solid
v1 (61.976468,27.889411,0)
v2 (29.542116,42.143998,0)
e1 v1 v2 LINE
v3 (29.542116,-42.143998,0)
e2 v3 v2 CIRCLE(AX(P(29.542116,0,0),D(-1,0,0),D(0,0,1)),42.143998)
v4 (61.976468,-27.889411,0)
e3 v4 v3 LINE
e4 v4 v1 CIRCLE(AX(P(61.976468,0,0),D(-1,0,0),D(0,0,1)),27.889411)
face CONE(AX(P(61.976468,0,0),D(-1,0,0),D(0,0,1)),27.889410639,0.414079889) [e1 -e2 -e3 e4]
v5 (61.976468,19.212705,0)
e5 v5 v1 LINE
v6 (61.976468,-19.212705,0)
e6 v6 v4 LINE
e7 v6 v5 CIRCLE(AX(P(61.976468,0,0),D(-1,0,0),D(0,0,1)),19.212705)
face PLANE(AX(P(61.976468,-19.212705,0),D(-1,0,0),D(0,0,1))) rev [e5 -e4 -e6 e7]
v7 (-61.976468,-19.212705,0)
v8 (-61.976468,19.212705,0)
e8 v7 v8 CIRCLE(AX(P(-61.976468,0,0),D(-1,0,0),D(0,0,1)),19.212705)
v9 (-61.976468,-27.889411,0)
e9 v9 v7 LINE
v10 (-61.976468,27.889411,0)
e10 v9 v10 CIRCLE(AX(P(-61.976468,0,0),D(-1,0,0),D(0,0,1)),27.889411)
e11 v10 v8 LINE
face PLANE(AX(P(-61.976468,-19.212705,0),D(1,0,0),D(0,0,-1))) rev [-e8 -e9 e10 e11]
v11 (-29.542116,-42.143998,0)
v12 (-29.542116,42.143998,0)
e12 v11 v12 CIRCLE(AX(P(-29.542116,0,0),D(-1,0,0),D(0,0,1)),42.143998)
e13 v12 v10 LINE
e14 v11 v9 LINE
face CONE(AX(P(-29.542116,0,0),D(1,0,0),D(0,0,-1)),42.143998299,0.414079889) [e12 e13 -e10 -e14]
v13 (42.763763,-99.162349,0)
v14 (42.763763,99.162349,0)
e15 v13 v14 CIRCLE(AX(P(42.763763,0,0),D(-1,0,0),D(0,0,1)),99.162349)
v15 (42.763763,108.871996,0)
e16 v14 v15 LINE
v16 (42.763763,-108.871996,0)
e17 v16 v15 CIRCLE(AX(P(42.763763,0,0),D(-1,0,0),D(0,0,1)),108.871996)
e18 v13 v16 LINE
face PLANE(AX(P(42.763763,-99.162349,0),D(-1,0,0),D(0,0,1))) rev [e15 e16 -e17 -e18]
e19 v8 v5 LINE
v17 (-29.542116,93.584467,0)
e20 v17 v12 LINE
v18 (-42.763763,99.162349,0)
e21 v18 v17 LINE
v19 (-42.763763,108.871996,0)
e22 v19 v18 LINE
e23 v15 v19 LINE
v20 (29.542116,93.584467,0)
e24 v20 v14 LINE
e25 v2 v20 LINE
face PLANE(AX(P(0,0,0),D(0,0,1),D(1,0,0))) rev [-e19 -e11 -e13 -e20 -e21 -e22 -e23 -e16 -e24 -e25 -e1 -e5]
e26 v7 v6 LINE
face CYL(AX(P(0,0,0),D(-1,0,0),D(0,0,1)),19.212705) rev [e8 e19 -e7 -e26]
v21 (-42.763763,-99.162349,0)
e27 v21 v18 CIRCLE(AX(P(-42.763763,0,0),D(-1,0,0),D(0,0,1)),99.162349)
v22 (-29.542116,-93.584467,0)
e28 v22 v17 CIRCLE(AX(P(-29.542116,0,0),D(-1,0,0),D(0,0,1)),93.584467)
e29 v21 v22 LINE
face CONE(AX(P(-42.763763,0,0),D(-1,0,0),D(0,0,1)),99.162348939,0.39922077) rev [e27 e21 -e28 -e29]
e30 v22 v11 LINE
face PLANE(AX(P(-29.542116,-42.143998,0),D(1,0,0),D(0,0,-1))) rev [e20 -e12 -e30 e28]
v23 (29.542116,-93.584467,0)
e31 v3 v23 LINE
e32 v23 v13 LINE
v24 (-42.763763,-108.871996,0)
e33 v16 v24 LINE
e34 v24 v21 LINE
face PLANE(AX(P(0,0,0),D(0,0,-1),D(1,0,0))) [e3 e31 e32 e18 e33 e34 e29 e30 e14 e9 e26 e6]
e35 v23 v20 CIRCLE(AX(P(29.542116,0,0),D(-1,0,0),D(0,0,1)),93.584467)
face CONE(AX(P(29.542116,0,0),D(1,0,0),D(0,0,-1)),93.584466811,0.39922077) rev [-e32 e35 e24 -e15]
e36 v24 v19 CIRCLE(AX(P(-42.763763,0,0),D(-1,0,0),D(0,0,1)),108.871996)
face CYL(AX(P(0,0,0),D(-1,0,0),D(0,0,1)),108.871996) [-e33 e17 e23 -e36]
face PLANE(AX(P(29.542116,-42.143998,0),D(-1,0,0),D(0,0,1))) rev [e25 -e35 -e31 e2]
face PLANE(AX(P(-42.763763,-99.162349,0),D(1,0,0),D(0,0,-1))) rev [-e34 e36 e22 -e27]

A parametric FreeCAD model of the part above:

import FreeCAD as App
import Part
import Sketcher
from FreeCAD import Vector

doc = App.newDocument("Part")
body = doc.addObject("PartDesign::Body", "Body")

# Sketch on XY plane
sketch1 = doc.addObject("Sketcher::SketchObject", "Sketch")
body.addObject(sketch1)
sketch1.AttachmentSupport = (doc.XY_Plane, [""])
sketch1.MapMode = "FlatFace"
sketch1.addGeometry([
    Part.LineSegment(Vector(-62, 19, 0), Vector(62, 19, 0)),  # 0
    Part.LineSegment(Vector(62, 19, 0), Vector(62, 28, 0)),  # 1
    Part.LineSegment(Vector(62, 28, 0), Vector(30, 42, 0)),  # 2
    Part.LineSegment(Vector(30, 42, 0), Vector(30, 94, 0)),  # 3
    Part.LineSegment(Vector(30, 94, 0), Vector(43, 99, 0)),  # 4
    Part.LineSegment(Vector(43, 99, 0), Vector(43, 109, 0)),  # 5
    Part.LineSegment(Vector(43, 109, 0), Vector(-43, 109, 0)),  # 6
    Part.LineSegment(Vector(-43, 109, 0), Vector(-43, 99, 0)),  # 7
    Part.LineSegment(Vector(-43, 99, 0), Vector(-30, 94, 0)),  # 8
    Part.LineSegment(Vector(-30, 94, 0), Vector(-30, 42, 0)),  # 9
    Part.LineSegment(Vector(-30, 42, 0), Vector(-62, 28, 0)),  # 10
    Part.LineSegment(Vector(-62, 28, 0), Vector(-62, 19, 0)),  # 11
], False)
sketch1.addConstraint([
    Sketcher.Constraint("Coincident", 0, 2, 1, 1),
    Sketcher.Constraint("Coincident", 1, 2, 2, 1),
    Sketcher.Constraint("Coincident", 2, 2, 3, 1),
    Sketcher.Constraint("Coincident", 3, 2, 4, 1),
    Sketcher.Constraint("Coincident", 4, 2, 5, 1),
    Sketcher.Constraint("Coincident", 5, 2, 6, 1),
    Sketcher.Constraint("Coincident", 6, 2, 7, 1),
    Sketcher.Constraint("Coincident", 7, 2, 8, 1),
    Sketcher.Constraint("Coincident", 8, 2, 9, 1),
    Sketcher.Constraint("Coincident", 9, 2, 10, 1),
    Sketcher.Constraint("Coincident", 10, 2, 11, 1),
    Sketcher.Constraint("Coincident", 11, 2, 0, 1),
    Sketcher.Constraint("Horizontal", 0),
    Sketcher.Constraint("Vertical", 1),
    Sketcher.Constraint("Vertical", 3),
    Sketcher.Constraint("Vertical", 5),
    Sketcher.Constraint("Horizontal", 6),
    Sketcher.Constraint("Vertical", 7),
    Sketcher.Constraint("Vertical", 9),
    Sketcher.Constraint("Vertical", 11),
    Sketcher.Constraint("Symmetric", 4, 2, 7, 2, -2),
    Sketcher.Constraint("Symmetric", 3, 2, 8, 2, -2),
    Sketcher.Constraint("Symmetric", 1, 2, 10, 2, -2),
    Sketcher.Constraint("Horizontal", 2, 2, 9, 2),
    Sketcher.Constraint("DistanceY", -1, 1, 2, 2, 42.143998),
    Sketcher.Constraint("DistanceY", 3, 1, 3, 2, 51.440469),
    Sketcher.Constraint("DistanceX", 0, 1, 0, 2, 123.952936),
    Sketcher.Constraint("DistanceX", 6, 2, 6, 1, 85.527526),
    Sketcher.Constraint("DistanceY", 1, 1, 1, 2, 8.676706),
    Sketcher.Constraint("DistanceY", 5, 1, 5, 2, 9.709647),
    Sketcher.Constraint("DistanceY", -1, 1, 1, 2, 27.889411),
    Sketcher.Constraint("DistanceY", -1, 1, 4, 2, 99.162349),
    Sketcher.Constraint("DistanceX", 2, 2, 1, 2, 32.434352),
])
revolution = doc.addObject("PartDesign::Revolution", "Revolution")
body.addObject(revolution)
revolution.Profile = sketch1
revolution.ReferenceAxis = (sketch1, ["H_Axis"])
revolution.Angle = 180

doc.recompute()
